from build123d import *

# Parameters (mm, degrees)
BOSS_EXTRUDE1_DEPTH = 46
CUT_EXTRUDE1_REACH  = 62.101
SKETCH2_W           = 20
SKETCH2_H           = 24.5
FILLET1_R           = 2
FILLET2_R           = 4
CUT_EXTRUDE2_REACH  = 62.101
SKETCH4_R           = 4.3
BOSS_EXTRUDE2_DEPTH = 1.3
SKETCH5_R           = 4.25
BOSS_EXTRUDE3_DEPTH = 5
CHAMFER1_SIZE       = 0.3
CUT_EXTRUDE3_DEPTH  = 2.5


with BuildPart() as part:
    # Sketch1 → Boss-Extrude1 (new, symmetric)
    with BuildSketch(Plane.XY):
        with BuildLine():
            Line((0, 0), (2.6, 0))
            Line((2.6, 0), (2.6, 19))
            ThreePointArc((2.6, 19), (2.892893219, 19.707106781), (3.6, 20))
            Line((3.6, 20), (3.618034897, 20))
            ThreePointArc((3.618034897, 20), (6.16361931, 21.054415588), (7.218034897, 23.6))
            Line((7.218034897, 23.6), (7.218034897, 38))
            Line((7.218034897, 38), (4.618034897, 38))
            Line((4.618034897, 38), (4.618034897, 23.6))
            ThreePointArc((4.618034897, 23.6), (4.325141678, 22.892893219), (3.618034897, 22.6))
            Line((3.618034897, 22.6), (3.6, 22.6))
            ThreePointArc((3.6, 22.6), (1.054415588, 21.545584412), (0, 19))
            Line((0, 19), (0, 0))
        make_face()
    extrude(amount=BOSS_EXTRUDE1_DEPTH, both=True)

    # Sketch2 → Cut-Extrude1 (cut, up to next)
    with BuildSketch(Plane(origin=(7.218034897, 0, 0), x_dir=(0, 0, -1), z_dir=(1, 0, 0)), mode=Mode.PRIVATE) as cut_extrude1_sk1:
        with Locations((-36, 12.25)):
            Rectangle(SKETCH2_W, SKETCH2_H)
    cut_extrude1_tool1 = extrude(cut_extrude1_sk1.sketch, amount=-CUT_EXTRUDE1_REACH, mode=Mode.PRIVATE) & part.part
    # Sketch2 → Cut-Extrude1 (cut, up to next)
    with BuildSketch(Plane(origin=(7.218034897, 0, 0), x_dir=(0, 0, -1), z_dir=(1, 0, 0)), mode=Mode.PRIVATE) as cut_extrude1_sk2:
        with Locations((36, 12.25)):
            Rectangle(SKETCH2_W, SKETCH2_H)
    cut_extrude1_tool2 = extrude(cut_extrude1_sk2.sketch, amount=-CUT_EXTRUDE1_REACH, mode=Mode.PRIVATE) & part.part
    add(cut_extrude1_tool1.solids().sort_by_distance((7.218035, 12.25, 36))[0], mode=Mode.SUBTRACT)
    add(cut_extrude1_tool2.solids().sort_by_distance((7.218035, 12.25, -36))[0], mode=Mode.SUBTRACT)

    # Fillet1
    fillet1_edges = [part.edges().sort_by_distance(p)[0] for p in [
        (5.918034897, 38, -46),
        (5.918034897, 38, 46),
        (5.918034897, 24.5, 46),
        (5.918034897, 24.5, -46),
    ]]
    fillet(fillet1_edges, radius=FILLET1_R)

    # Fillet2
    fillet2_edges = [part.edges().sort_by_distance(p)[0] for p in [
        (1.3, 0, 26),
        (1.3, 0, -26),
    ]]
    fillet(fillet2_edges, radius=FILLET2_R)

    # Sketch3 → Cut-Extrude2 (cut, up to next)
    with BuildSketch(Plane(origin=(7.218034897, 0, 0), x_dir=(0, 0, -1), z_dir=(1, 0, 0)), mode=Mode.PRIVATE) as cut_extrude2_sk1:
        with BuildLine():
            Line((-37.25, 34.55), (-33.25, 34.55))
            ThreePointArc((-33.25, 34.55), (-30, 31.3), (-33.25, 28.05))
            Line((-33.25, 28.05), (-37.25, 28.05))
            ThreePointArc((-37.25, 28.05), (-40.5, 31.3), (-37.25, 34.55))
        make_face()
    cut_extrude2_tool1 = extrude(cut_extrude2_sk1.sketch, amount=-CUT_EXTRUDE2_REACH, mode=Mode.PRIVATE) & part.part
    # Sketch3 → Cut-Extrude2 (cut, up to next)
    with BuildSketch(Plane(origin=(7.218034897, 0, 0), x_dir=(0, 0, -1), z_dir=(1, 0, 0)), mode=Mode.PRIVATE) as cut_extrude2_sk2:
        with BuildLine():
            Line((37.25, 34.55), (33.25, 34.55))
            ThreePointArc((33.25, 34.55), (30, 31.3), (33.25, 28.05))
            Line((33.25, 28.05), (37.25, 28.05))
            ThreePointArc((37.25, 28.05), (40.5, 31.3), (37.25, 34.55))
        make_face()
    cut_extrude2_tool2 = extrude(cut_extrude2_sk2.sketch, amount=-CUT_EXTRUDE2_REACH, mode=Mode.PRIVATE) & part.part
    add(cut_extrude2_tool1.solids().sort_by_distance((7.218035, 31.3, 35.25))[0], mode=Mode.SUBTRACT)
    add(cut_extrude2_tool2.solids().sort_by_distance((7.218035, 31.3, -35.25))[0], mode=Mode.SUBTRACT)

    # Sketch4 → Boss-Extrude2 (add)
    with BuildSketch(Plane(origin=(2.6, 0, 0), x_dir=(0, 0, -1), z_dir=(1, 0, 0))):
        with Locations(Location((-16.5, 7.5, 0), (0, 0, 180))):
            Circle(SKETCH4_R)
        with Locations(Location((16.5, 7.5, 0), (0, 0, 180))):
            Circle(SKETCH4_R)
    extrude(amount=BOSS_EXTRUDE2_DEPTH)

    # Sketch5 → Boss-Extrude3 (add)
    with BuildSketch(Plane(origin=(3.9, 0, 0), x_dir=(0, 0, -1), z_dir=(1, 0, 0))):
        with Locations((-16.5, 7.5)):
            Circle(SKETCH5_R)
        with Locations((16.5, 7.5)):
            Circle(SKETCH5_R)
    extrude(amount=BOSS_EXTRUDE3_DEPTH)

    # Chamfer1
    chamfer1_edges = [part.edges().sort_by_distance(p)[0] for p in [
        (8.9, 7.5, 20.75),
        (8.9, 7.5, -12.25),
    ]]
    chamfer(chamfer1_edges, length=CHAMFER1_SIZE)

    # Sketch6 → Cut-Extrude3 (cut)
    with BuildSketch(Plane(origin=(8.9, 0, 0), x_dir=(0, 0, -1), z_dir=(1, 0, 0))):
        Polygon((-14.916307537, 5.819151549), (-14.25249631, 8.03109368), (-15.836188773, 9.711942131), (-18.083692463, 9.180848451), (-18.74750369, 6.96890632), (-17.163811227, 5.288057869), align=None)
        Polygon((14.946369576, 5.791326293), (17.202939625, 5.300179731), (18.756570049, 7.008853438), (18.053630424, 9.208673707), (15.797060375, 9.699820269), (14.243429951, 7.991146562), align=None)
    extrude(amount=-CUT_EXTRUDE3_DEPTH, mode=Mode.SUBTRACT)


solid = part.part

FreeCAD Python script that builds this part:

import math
import FreeCAD as App
import Part
import Sketcher
from FreeCAD import Vector


def edges_at(feature, points):
    """Names of the edges that pass closest to the given points."""
    edges = feature.Shape.Edges
    near = lambda p: min(range(len(edges)), key=lambda i: edges[i].distToShape(Part.Vertex(*p))[0])
    return sorted({f"Edge{near(p) + 1}" for p in points})


def add_polygon(sketch, points):
    """Adds a closed chain of lines whose ends are joined by coincident constraints."""
    first, n = sketch.GeometryCount, len(points)
    for a, b in zip(points, points[1:] + points[:1]):
        sketch.addGeometry(Part.LineSegment(App.Vector(*a, 0), App.Vector(*b, 0)), False)
    for i in range(n):
        sketch.addConstraint(Sketcher.Constraint("Coincident", first + i, 2, first + (i + 1) % n, 1))

doc = App.newDocument("Part")
body = doc.addObject("PartDesign::Body", "Body")

# Sketch on XY plane
sketch1 = body.newObject("Sketcher::SketchObject", "Sketch")
sketch1.AttachmentSupport = (doc.getObject("XY_Plane"), [""])
sketch1.MapMode = "FlatFace"
sketch1.addGeometry(Part.LineSegment(Vector(0, 0, 0), Vector(2.6, 0, 0)), False)
sketch1.addGeometry(Part.LineSegment(Vector(2.6, 0, 0), Vector(2.6, 19, 0)), False)
sketch1.addGeometry(Part.ArcOfCircle(Part.Circle(Vector(3.6, 19, 0), Vector(0, 0, 1), 1), math.radians(90), math.radians(180)), False)
sketch1.addGeometry(Part.LineSegment(Vector(3.6, 20, 0), Vector(3.618, 20, 0)), False)
sketch1.addGeometry(Part.ArcOfCircle(Part.Circle(Vector(3.618, 23.6, 0), Vector(0, 0, 1), 3.6), math.radians(-90), math.radians(0)), False)
sketch1.addGeometry(Part.LineSegment(Vector(7.218, 23.6, 0), Vector(7.218, 38, 0)), False)
sketch1.addGeometry(Part.LineSegment(Vector(7.218, 38, 0), Vector(4.618, 38, 0)), False)
sketch1.addGeometry(Part.LineSegment(Vector(4.618, 38, 0), Vector(4.618, 23.6, 0)), False)
sketch1.addGeometry(Part.ArcOfCircle(Part.Circle(Vector(3.618, 23.6, 0), Vector(0, 0, 1), 1), math.radians(-90), math.radians(0)), False)
sketch1.addGeometry(Part.LineSegment(Vector(3.618, 22.6, 0), Vector(3.6, 22.6, 0)), False)
sketch1.addGeometry(Part.ArcOfCircle(Part.Circle(Vector(3.6, 19, 0), Vector(0, 0, 1), 3.6), math.radians(90), math.radians(180)), False)
sketch1.addGeometry(Part.LineSegment(Vector(0, 19, 0), Vector(0, 0, 0)), False)
sketch1.addConstraint(Sketcher.Constraint("Coincident", 0, 2, 1, 1))
sketch1.addConstraint(Sketcher.Constraint("Tangent", 1, 2, 2, 2))
sketch1.addConstraint(Sketcher.Constraint("Tangent", 2, 1, 3, 1))
sketch1.addConstraint(Sketcher.Constraint("Tangent", 3, 2, 4, 1))
sketch1.addConstraint(Sketcher.Constraint("Tangent", 4, 2, 5, 1))
sketch1.addConstraint(Sketcher.Constraint("Coincident", 5, 2, 6, 1))
sketch1.addConstraint(Sketcher.Constraint("Coincident", 6, 2, 7, 1))
sketch1.addConstraint(Sketcher.Constraint("Tangent", 7, 2, 8, 2))
sketch1.addConstraint(Sketcher.Constraint("Tangent", 8, 1, 9, 1))
sketch1.addConstraint(Sketcher.Constraint("Tangent", 9, 2, 10, 1))
sketch1.addConstraint(Sketcher.Constraint("Tangent", 10, 2, 11, 1))
sketch1.addConstraint(Sketcher.Constraint("Coincident", 11, 2, 0, 1))
sketch1.addConstraint(Sketcher.Constraint("Horizontal", 0))
sketch1.addConstraint(Sketcher.Constraint("Vertical", 1))
sketch1.addConstraint(Sketcher.Constraint("Horizontal", 3))
sketch1.addConstraint(Sketcher.Constraint("Vertical", 5))
sketch1.addConstraint(Sketcher.Constraint("Horizontal", 6))
sketch1.addConstraint(Sketcher.Constraint("Vertical", 7))
sketch1.addConstraint(Sketcher.Constraint("Horizontal", 9))
sketch1.addConstraint(Sketcher.Constraint("Vertical", 11))
sketch1.addConstraint(Sketcher.Constraint("Coincident", 11, 2, -1, 1))
sketch1.addConstraint(Sketcher.Constraint("Coincident", 8, 3, 4, 3))
sketch1.addConstraint(Sketcher.Constraint("Coincident", 10, 3, 2, 3))
sketch1.addConstraint(Sketcher.Constraint("Equal", 2, 8))
sketch1.addConstraint(Sketcher.Constraint("Radius", 2, 1.0))
sketch1.addConstraint(Sketcher.Constraint("Radius", 4, 3.6))
sketch1.addConstraint(Sketcher.Constraint("DistanceY", 1, 1, 1, 2, 19.0))
sketch1.addConstraint(Sketcher.Constraint("DistanceY", 5, 1, 5, 2, 14.4))
sketch1.addConstraint(Sketcher.Constraint("DistanceX", 3, 1, 3, 2, 0.018035))
pad1 = body.newObject("PartDesign::Pad", "Pad")
pad1.Profile = sketch1
pad1.Length = 92
pad1.Midplane = True

# Sketch on YZ plane
sketch2 = body.newObject("Sketcher::SketchObject", "Sketch001")
sketch2.AttachmentSupport = (doc.getObject("YZ_Plane"), [""])
sketch2.MapMode = "FlatFace"
sketch2.AttachmentOffset = App.Placement(Vector(0, 0, 7.218035), App.Rotation())
add_polygon(sketch2, [(24, 46), (0, 46), (0, 26), (24, 26)])  # lines 0-3
sketch2.addConstraint(Sketcher.Constraint("Horizontal", 0))
sketch2.addConstraint(Sketcher.Constraint("Vertical", 1))
sketch2.addConstraint(Sketcher.Constraint("Horizontal", 2))
sketch2.addConstraint(Sketcher.Constraint("Vertical", 3))
sketch2.addConstraint(Sketcher.Constraint("PointOnObject", 0, 2, -2))
sketch2.addConstraint(Sketcher.Constraint("DistanceY", 1, 2, 1, 1, 20.0))
sketch2.addConstraint(Sketcher.Constraint("DistanceX", 0, 2, 0, 1, 24.5))
sketch2.addConstraint(Sketcher.Constraint("DistanceY", -1, 1, 0, 2, 46.0))
pocket1 = body.newObject("PartDesign::Pocket", "Pocket")
pocket1.Profile = sketch2
pocket1.Length = 7.218035

# Sketch on YZ plane
sketch3 = body.newObject("Sketcher::SketchObject", "Sketch002")
sketch3.AttachmentSupport = (doc.getObject("YZ_Plane"), [""])
sketch3.MapMode = "FlatFace"
sketch3.AttachmentOffset = App.Placement(Vector(0, 0, 7.218035), App.Rotation())
add_polygon(sketch3, [(24, -26), (0, -26), (0, -46), (24, -46)])  # lines 0-3
sketch3.addConstraint(Sketcher.Constraint("Horizontal", 0))
sketch3.addConstraint(Sketcher.Constraint("Vertical", 1))
sketch3.addConstraint(Sketcher.Constraint("Horizontal", 2))
sketch3.addConstraint(Sketcher.Constraint("Vertical", 3))
sketch3.addConstraint(Sketcher.Constraint("PointOnObject", 0, 2, -2))
sketch3.addConstraint(Sketcher.Constraint("DistanceY", 1, 2, 1, 1, 20.0))
sketch3.addConstraint(Sketcher.Constraint("DistanceX", 0, 2, 0, 1, 24.5))
sketch3.addConstraint(Sketcher.Constraint("DistanceY", 0, 2, -1, 1, 26.0))
pocket2 = body.newObject("PartDesign::Pocket", "Pocket001")
pocket2.Profile = sketch3
pocket2.Length = 7.218035
doc.recompute()

fillet = body.newObject("PartDesign::Fillet", "Fillet")
fillet.Base = (pocket2, edges_at(pocket2, [
    (5.918, 38, -46),
    (5.918, 38, 46),
    (5.918, 24.5, 46),
    (5.918, 24.5, -46),
]))
fillet.Radius = 2
doc.recompute()

fillet2 = body.newObject("PartDesign::Fillet", "Fillet001")
fillet2.Base = (fillet, edges_at(fillet, [(1.3, 0, 26), (1.3, 0, -26)]))
fillet2.Radius = 4

# Sketch on YZ plane
sketch4 = body.newObject("Sketcher::SketchObject", "Sketch003")
sketch4.AttachmentSupport = (doc.getObject("YZ_Plane"), [""])
sketch4.MapMode = "FlatFace"
sketch4.AttachmentOffset = App.Placement(Vector(0, 0, 7.218035), App.Rotation())
sketch4.addGeometry(Part.LineSegment(Vector(34.5, 33.2, 0), Vector(34.5, 37.2, 0)), False)
sketch4.addGeometry(Part.ArcOfCircle(Part.Circle(Vector(31.3, 37.2, 0), Vector(0, 0, 1), 3.2), math.radians(0), math.radians(180)), False)
sketch4.addGeometry(Part.LineSegment(Vector(28.1, 37.2, 0), Vector(28.1, 33.2, 0)), False)
sketch4.addGeometry(Part.ArcOfCircle(Part.Circle(Vector(31.3, 33.2, 0), Vector(0, 0, 1), 3.2), math.radians(180), math.radians(360)), False)
sketch4.addConstraint(Sketcher.Constraint("Tangent", 0, 2, 1, 1))
sketch4.addConstraint(Sketcher.Constraint("Tangent", 1, 2, 2, 1))
sketch4.addConstraint(Sketcher.Constraint("Tangent", 2, 2, 3, 1))
sketch4.addConstraint(Sketcher.Constraint("Tangent", 3, 2, 0, 1))
sketch4.addConstraint(Sketcher.Constraint("Vertical", 0))
sketch4.addConstraint(Sketcher.Constraint("Vertical", 2))
sketch4.addConstraint(Sketcher.Constraint("DistanceY", 0, 1, 0, 2, 4.0))
sketch4.addConstraint(Sketcher.Constraint("Radius", 1, 3.25))
sketch4.addConstraint(Sketcher.Constraint("DistanceX", -1, 1, 1, 3, 31.3))
sketch4.addConstraint(Sketcher.Constraint("DistanceY", -1, 1, 1, 3, 37.25))
pocket3 = body.newObject("PartDesign::Pocket", "Pocket002")
pocket3.Profile = sketch4
pocket3.Type = "UpToFirst"

# Sketch on YZ plane
sketch5 = body.newObject("Sketcher::SketchObject", "Sketch004")
sketch5.AttachmentSupport = (doc.getObject("YZ_Plane"), [""])
sketch5.MapMode = "FlatFace"
sketch5.AttachmentOffset = App.Placement(Vector(0, 0, 7.218035), App.Rotation())
sketch5.addGeometry(Part.LineSegment(Vector(34.5, -37.2, 0), Vector(34.5, -33.2, 0)), False)
sketch5.addGeometry(Part.ArcOfCircle(Part.Circle(Vector(31.3, -33.2, 0), Vector(0, 0, 1), 3.2), math.radians(0), math.radians(180)), False)
sketch5.addGeometry(Part.LineSegment(Vector(28.1, -33.2, 0), Vector(28.1, -37.2, 0)), False)
sketch5.addGeometry(Part.ArcOfCircle(Part.Circle(Vector(31.3, -37.2, 0), Vector(0, 0, 1), 3.2), math.radians(180), math.radians(360)), False)
sketch5.addConstraint(Sketcher.Constraint("Tangent", 0, 2, 1, 1))
sketch5.addConstraint(Sketcher.Constraint("Tangent", 1, 2, 2, 1))
sketch5.addConstraint(Sketcher.Constraint("Tangent", 2, 2, 3, 1))
sketch5.addConstraint(Sketcher.Constraint("Tangent", 3, 2, 0, 1))
sketch5.addConstraint(Sketcher.Constraint("Vertical", 0))
sketch5.addConstraint(Sketcher.Constraint("Vertical", 2))
sketch5.addConstraint(Sketcher.Constraint("DistanceY", 0, 1, 0, 2, 4.0))
sketch5.addConstraint(Sketcher.Constraint("Radius", 1, 3.25))
sketch5.addConstraint(Sketcher.Constraint("DistanceX", -1, 1, 1, 3, 31.3))
sketch5.addConstraint(Sketcher.Constraint("DistanceY", 1, 3, -1, 1, 33.25))
pocket4 = body.newObject("PartDesign::Pocket", "Pocket003")
pocket4.Profile = sketch5
pocket4.Type = "UpToFirst"

# Sketch on YZ plane
sketch6 = body.newObject("Sketcher::SketchObject", "Sketch005")
sketch6.AttachmentSupport = (doc.getObject("YZ_Plane"), [""])
sketch6.MapMode = "FlatFace"
sketch6.AttachmentOffset = App.Placement(Vector(0, 0, 2.6), App.Rotation())
sketch6.addGeometry(Part.Circle(Vector(7.5, 16.5, 0), Vector(0, 0, 1), 4.3), False)
sketch6.addGeometry(Part.Circle(Vector(7.5, -16.5, 0), Vector(0, 0, 1), 4.3), False)
sketch6.addConstraint(Sketcher.Constraint("Equal", 0, 1))
sketch6.addConstraint(Sketcher.Constraint("Symmetric", 0, 3, 1, 3, -1))
sketch6.addConstraint(Sketcher.Constraint("Diameter", 0, 8.6))
sketch6.addConstraint(Sketcher.Constraint("DistanceY", 1, 3, 0, 3, 33.0))
sketch6.addConstraint(Sketcher.Constraint("DistanceX", -1, 1, 0, 3, 7.5))
pad2 = body.newObject("PartDesign::Pad", "Pad001")
pad2.Profile = sketch6
pad2.Length = 1.3

# Sketch on YZ plane
sketch7 = body.newObject("Sketcher::SketchObject", "Sketch006")
sketch7.AttachmentSupport = (doc.getObject("YZ_Plane"), [""])
sketch7.MapMode = "FlatFace"
sketch7.AttachmentOffset = App.Placement(Vector(0, 0, 3.9), App.Rotation())
sketch7.addGeometry(Part.Circle(Vector(7.5, 16.5, 0), Vector(0, 0, 1), 4.2), False)
sketch7.addGeometry(Part.Circle(Vector(7.5, -16.5, 0), Vector(0, 0, 1), 4.2), False)
sketch7.addConstraint(Sketcher.Constraint("Equal", 0, 1))
sketch7.addConstraint(Sketcher.Constraint("Symmetric", 0, 3, 1, 3, -1))
sketch7.addConstraint(Sketcher.Constraint("Diameter", 0, 8.5))
sketch7.addConstraint(Sketcher.Constraint("DistanceY", 1, 3, 0, 3, 33.0))
sketch7.addConstraint(Sketcher.Constraint("DistanceX", -1, 1, 0, 3, 7.5))
pad3 = body.newObject("PartDesign::Pad", "Pad002")
pad3.Profile = sketch7
pad3.Length = 5
doc.recompute()

chamfer = body.newObject("PartDesign::Chamfer", "Chamfer")
chamfer.Base = (pad3, edges_at(pad3, [(8.9, 7.5, 20.75), (8.9, 7.5, -12.25)]))
chamfer.Size = 0.3

# Sketch on YZ plane
sketch8 = body.newObject("Sketcher::SketchObject", "Sketch007")
sketch8.AttachmentSupport = (doc.getObject("YZ_Plane"), [""])
sketch8.MapMode = "FlatFace"
sketch8.AttachmentOffset = App.Placement(Vector(0, 0, 8.9), App.Rotation())
add_polygon(sketch8, [(5.8, 14.9), (8, 14.3), (9.7, 15.8), (9.2, 18.1), (7, 18.7), (5.3, 17.2)])  # lines 0-5
add_polygon(sketch8, [(5.8, -14.9), (5.3, -17.2), (7, -18.8), (9.2, -18.1), (9.7, -15.8), (8, -14.2)])  # lines 6-11
sketch8.addConstraint(Sketcher.Constraint("Parallel", 0, 3))
sketch8.addConstraint(Sketcher.Constraint("Parallel", 1, 4))
sketch8.addConstraint(Sketcher.Constraint("Parallel", 2, 5))
sketch8.addConstraint(Sketcher.Constraint("Parallel", 6, 9))
sketch8.addConstraint(Sketcher.Constraint("Parallel", 7, 10))
sketch8.addConstraint(Sketcher.Constraint("Parallel", 8, 11))
sketch8.addConstraint(Sketcher.Constraint("Equal", 0, 1))
sketch8.addConstraint(Sketcher.Constraint("Equal", 1, 2))
sketch8.addConstraint(Sketcher.Constraint("Equal", 2, 3))
sketch8.addConstraint(Sketcher.Constraint("Equal", 5, 6))
sketch8.addConstraint(Sketcher.Constraint("Equal", 6, 7))
sketch8.addConstraint(Sketcher.Constraint("Equal", 7, 8))
sketch8.addConstraint(Sketcher.Constraint("Equal", 8, 9))
sketch8.addConstraint(Sketcher.Constraint("Distance", 0, 2.309401))
sketch8.addConstraint(Sketcher.Constraint("DistanceX", 5, 2, 7, 2, 1.189702))
sketch8.addConstraint(Sketcher.Constraint("DistanceY", 8, 2, 10, 2, 3.8102))
sketch8.addConstraint(Sketcher.Constraint("DistanceY", -1, 1, 1, 2, 15.836189))
sketch8.addConstraint(Sketcher.Constraint("DistanceX", -1, 1, 2, 2, 9.180848))
sketch8.addConstraint(Sketcher.Constraint("DistanceY", -1, 1, 4, 2, 17.163811))
sketch8.addConstraint(Sketcher.Constraint("DistanceX", -1, 1, 5, 2, 5.819152))
sketch8.addConstraint(Sketcher.Constraint("DistanceX", -1, 1, 6, 2, 5.30018))
sketch8.addConstraint(Sketcher.Constraint("DistanceY", 6, 2, -1, 1, 17.20294))
sketch8.addConstraint(Sketcher.Constraint("DistanceY", 8, 2, -1, 1, 18.05363))
sketch8.addConstraint(Sketcher.Constraint("DistanceX", 0, 2, 1, 2, 1.680848))
pocket5 = body.newObject("PartDesign::Pocket", "Pocket004")
pocket5.Profile = sketch8
pocket5.Length = 2.5

doc.recompute()
